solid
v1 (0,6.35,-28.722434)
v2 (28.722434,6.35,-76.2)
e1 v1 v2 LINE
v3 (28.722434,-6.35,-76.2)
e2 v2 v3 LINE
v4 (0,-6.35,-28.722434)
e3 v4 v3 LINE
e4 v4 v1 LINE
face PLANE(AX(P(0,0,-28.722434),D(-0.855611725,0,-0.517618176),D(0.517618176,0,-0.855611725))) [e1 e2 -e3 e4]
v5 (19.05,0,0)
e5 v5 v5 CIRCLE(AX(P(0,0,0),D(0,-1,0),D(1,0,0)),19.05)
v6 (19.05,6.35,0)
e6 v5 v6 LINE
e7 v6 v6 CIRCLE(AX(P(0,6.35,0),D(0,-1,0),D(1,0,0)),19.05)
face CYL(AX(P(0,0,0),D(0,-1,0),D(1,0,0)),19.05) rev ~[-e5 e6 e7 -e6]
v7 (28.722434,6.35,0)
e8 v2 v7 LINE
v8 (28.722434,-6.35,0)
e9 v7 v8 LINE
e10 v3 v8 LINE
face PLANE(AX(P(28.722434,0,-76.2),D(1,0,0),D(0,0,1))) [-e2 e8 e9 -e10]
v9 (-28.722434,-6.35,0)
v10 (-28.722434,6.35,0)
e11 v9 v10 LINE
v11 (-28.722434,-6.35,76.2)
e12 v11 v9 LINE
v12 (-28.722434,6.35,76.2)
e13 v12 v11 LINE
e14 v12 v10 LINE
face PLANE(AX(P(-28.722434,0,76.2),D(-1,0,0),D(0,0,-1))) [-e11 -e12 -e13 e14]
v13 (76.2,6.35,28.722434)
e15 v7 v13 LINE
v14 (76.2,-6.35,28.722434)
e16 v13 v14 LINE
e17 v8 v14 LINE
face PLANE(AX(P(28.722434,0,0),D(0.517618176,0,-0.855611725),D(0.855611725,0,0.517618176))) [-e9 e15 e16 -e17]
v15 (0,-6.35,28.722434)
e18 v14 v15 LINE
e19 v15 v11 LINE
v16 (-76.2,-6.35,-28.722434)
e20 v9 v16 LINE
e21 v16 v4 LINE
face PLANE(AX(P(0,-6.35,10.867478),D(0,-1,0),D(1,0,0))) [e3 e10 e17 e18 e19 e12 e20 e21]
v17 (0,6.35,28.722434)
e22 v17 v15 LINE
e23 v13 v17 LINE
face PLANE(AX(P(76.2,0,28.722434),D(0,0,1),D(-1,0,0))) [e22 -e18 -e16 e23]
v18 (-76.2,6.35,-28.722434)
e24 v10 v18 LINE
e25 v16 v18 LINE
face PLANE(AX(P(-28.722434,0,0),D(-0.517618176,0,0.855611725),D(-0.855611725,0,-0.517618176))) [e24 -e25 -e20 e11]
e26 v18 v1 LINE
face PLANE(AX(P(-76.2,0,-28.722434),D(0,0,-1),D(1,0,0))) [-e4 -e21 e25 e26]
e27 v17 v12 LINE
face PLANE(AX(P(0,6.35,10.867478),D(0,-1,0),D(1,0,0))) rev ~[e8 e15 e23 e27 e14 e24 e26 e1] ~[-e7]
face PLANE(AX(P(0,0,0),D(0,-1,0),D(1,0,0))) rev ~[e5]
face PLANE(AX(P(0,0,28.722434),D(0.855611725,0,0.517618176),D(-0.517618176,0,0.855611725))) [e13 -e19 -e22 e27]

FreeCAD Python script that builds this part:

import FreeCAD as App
import Part
import Sketcher
from FreeCAD import Vector
Q = App.Units.Quantity

doc = App.newDocument("Part")
params = doc.addObject("Spreadsheet::Sheet", "Params")
for row, (alias, value) in enumerate([
    ("sketch1_width", "3 in"),
    ("pad1_length", "0.5 in"),
    ("sketch2_diameter", "1.5 in"),
], start=1):
    params.set(f"A{row}", alias)
    params.set(f"B{row}", "=" + value)
    params.setAlias(f"B{row}", alias)

body = doc.addObject("PartDesign::Body", "Body")

sketch1 = doc.addObject("Sketcher::SketchObject", "Sketch")
body.addObject(sketch1)
sketch1.AttachmentSupport = (doc.XZ_Plane, [""])
sketch1.MapMode = "FlatFace"
sketch1.addGeometry(Part.LineSegment(Vector(0, -28.722434, 0), Vector(28.722434, -76.2, 0)), False)
sketch1.addGeometry(Part.LineSegment(Vector(28.722434, -76.2, 0), Vector(28.722434, 0, 0)), False)
sketch1.addGeometry(Part.LineSegment(Vector(28.722434, 0, 0), Vector(76.2, 28.722434, 0)), False)
sketch1.addGeometry(Part.LineSegment(Vector(76.2, 28.722434, 0), Vector(0, 28.722434, 0)), False)
sketch1.addGeometry(Part.LineSegment(Vector(0, 28.722434, 0), Vector(-28.722434, 76.2, 0)), False)
sketch1.addGeometry(Part.LineSegment(Vector(-28.722434, 76.2, 0), Vector(-28.722434, 0, 0)), False)
sketch1.addGeometry(Part.LineSegment(Vector(-28.722434, 0, 0), Vector(-76.2, -28.722434, 0)), False)
sketch1.addGeometry(Part.LineSegment(Vector(-76.2, -28.722434, 0), Vector(0, -28.722434, 0)), False)
sketch1.addConstraint(Sketcher.Constraint("Coincident", 0, 2, 1, 1))
sketch1.addConstraint(Sketcher.Constraint("Coincident", 1, 2, 2, 1))
sketch1.addConstraint(Sketcher.Constraint("Coincident", 2, 2, 3, 1))
sketch1.addConstraint(Sketcher.Constraint("Coincident", 3, 2, 4, 1))
sketch1.addConstraint(Sketcher.Constraint("Coincident", 4, 2, 5, 1))
sketch1.addConstraint(Sketcher.Constraint("Coincident", 5, 2, 6, 1))
sketch1.addConstraint(Sketcher.Constraint("Coincident", 6, 2, 7, 1))
sketch1.addConstraint(Sketcher.Constraint("Coincident", 7, 2, 0, 1))
sketch1.addConstraint(Sketcher.Constraint("Vertical", 1))
sketch1.addConstraint(Sketcher.Constraint("Horizontal", 3))
sketch1.addConstraint(Sketcher.Constraint("Vertical", 5))
sketch1.addConstraint(Sketcher.Constraint("Horizontal", 7))
sketch1.addConstraint(Sketcher.Constraint("Symmetric", 0, 2, 4, 2, -1, 1))
sketch1.addConstraint(Sketcher.Constraint("Symmetric", 2, 2, 6, 2, -1, 1))
sketch1.addConstraint(Sketcher.Constraint("PointOnObject", 1, 2, -1))
sketch1.addConstraint(Sketcher.Constraint("PointOnObject", 3, 2, -2))
sketch1.addConstraint(Sketcher.Constraint("PointOnObject", 5, 2, -1))
sketch1.addConstraint(Sketcher.Constraint("PointOnObject", 7, 2, -2))
sketch1.addConstraint(Sketcher.Constraint("Perpendicular", 0, 2))
sketch1.addConstraint(Sketcher.Constraint("Equal", 7, 1))
sketch1.addConstraint(Sketcher.Constraint("DistanceX", 3, 2, 3, 1, Q("3 in")))
sketch1.addConstraint(Sketcher.Constraint("Distance", 0, Q("55.489616 mm")))
sketch1.setExpression("Constraints[20]", "Params.sketch1_width")
pad1 = doc.addObject("PartDesign::Pad", "Pad")
body.addObject(pad1)
pad1.Profile = sketch1
pad1.setExpression("Length", "Params.pad1_length")
pad1.Midplane = True

sketch2 = doc.addObject("Sketcher::SketchObject", "Sketch001")
body.addObject(sketch2)
sketch2.AttachmentSupport = (doc.XZ_Plane, [""])
sketch2.MapMode = "FlatFace"
sketch2.addGeometry(Part.Circle(Vector(0, 0, 0), Vector(0, 0, 1), 19.05), False)
sketch2.addConstraint(Sketcher.Constraint("Coincident", 0, 3, -1, 1))
sketch2.addConstraint(Sketcher.Constraint("Diameter", 0, Q("1.5 in")))
sketch2.setExpression("Constraints[1]", "Params.sketch2_diameter")
pocket1 = doc.addObject("PartDesign::Pocket", "Pocket")
body.addObject(pocket1)
pocket1.Profile = sketch2
pocket1.Type = "ThroughAll"

doc.recompute()
